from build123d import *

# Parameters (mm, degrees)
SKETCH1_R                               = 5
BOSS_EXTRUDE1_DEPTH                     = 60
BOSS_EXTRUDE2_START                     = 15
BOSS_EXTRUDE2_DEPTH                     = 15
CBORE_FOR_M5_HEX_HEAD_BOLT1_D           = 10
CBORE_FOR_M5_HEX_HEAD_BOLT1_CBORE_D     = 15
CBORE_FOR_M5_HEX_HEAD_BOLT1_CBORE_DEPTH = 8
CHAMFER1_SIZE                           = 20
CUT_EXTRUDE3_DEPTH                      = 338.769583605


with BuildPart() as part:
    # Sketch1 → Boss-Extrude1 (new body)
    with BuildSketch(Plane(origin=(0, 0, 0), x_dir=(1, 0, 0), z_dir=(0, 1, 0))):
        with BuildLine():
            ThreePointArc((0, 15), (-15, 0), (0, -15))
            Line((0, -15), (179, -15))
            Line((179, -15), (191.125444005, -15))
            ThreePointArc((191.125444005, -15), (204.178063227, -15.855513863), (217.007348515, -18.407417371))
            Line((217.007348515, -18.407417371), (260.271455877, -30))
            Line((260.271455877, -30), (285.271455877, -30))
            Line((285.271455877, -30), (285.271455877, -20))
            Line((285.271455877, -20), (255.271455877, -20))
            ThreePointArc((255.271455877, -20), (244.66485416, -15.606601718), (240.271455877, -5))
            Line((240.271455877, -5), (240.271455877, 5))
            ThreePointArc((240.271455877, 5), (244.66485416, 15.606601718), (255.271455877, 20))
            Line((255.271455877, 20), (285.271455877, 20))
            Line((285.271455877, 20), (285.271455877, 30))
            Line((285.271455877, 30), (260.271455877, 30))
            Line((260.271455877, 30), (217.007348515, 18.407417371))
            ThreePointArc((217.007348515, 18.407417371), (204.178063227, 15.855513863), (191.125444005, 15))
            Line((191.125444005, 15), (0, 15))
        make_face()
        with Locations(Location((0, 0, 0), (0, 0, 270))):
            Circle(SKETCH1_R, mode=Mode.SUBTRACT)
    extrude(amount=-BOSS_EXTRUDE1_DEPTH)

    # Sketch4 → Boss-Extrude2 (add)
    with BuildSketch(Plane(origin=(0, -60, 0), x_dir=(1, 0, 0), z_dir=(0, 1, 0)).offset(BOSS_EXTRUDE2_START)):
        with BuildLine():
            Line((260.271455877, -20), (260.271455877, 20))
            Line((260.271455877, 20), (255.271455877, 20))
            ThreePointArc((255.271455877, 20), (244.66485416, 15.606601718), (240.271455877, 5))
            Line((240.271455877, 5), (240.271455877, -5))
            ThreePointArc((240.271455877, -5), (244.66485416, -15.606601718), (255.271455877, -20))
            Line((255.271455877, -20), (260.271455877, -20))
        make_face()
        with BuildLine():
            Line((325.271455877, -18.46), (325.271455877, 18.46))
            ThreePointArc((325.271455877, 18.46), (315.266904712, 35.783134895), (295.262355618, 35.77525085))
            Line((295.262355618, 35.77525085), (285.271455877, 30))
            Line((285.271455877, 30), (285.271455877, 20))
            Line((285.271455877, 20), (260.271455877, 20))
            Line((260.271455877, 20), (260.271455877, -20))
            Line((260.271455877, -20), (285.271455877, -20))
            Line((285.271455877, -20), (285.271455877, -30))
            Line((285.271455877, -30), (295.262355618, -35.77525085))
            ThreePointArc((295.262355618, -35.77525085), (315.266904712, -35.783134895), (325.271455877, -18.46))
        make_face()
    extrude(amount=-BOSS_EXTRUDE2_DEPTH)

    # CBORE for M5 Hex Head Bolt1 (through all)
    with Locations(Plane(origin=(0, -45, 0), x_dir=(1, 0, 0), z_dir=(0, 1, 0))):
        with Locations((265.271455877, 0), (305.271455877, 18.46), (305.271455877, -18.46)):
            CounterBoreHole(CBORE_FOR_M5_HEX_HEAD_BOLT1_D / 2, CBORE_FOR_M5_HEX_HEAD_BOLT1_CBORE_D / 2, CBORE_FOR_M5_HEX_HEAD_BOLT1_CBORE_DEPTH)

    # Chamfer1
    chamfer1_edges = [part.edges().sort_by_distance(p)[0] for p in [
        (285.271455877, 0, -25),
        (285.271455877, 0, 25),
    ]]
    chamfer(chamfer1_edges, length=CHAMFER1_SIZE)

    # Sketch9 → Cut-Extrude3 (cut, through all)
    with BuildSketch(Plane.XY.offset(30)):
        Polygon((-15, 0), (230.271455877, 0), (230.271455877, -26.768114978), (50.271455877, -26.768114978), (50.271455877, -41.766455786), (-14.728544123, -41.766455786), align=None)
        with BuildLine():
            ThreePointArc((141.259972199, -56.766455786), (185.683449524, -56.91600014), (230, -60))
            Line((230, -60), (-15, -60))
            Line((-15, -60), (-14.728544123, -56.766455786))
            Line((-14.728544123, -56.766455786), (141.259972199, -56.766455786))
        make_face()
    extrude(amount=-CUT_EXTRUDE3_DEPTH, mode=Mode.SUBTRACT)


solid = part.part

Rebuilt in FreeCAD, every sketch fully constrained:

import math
import FreeCAD as App
import Part
import Sketcher
Q = App.Units.Quantity


def edges_at(feature, points):
    """Names of the edges that pass closest to the given points."""
    edges = feature.Shape.Edges
    near = lambda p: min(range(len(edges)), key=lambda i: edges[i].distToShape(Part.Vertex(*p))[0])
    return sorted({f"Edge{near(p) + 1}" for p in points})

doc = App.newDocument("Part")
body = doc.addObject("PartDesign::Body", "Body")

# Sketch on XZ plane
sketch1 = body.newObject("Sketcher::SketchObject", "Sketch")
sketch1.AttachmentSupport = (doc.getObject("XZ_Plane"), [""])
sketch1.MapMode = "FlatFace"
sketch1.addGeometry(Part.ArcOfCircle(Part.Circle(App.Vector(0, 0, 0), App.Vector(0, 0, 1), 15), math.radians(90), math.radians(270)), False)
sketch1.addGeometry(Part.LineSegment(App.Vector(0, 15, 0), App.Vector(191.125444, 15, 0)), False)
sketch1.addGeometry(Part.ArcOfCircle(Part.Circle(App.Vector(191.125444, 115, 0), App.Vector(0, 0, 1), 100), math.radians(-90), math.radians(-75)), False)
sketch1.addGeometry(Part.LineSegment(App.Vector(217.007349, 18.407417, 0), App.Vector(260.271456, 30, 0)), False)
sketch1.addGeometry(Part.LineSegment(App.Vector(260.271456, 30, 0), App.Vector(285.271456, 30, 0)), False)
sketch1.addGeometry(Part.LineSegment(App.Vector(285.271456, 30, 0), App.Vector(285.271456, 20, 0)), False)
sketch1.addGeometry(Part.LineSegment(App.Vector(285.271456, 20, 0), App.Vector(255.271456, 20, 0)), False)
sketch1.addGeometry(Part.ArcOfCircle(Part.Circle(App.Vector(255.271456, 5, 0), App.Vector(0, 0, 1), 15), math.radians(90), math.radians(180)), False)
sketch1.addGeometry(Part.LineSegment(App.Vector(240.271456, 5, 0), App.Vector(240.271456, -5, 0)), False)
sketch1.addGeometry(Part.ArcOfCircle(Part.Circle(App.Vector(255.271456, -5, 0), App.Vector(0, 0, 1), 15), math.radians(-180), math.radians(-90)), False)
sketch1.addGeometry(Part.LineSegment(App.Vector(255.271456, -20, 0), App.Vector(285.271456, -20, 0)), False)
sketch1.addGeometry(Part.LineSegment(App.Vector(285.271456, -20, 0), App.Vector(285.271456, -30, 0)), False)
sketch1.addGeometry(Part.LineSegment(App.Vector(285.271456, -30, 0), App.Vector(260.271456, -30, 0)), False)
sketch1.addGeometry(Part.LineSegment(App.Vector(260.271456, -30, 0), App.Vector(217.007349, -18.407417, 0)), False)
sketch1.addGeometry(Part.ArcOfCircle(Part.Circle(App.Vector(191.125444, -115, 0), App.Vector(0, 0, 1), 100), math.radians(75), math.radians(90)), False)
sketch1.addGeometry(Part.LineSegment(App.Vector(191.125444, -15, 0), App.Vector(0, -15, 0)), False)
sketch1.addGeometry(Part.Circle(App.Vector(0, 0, 0), App.Vector(0, 0, 1), 5), False)
sketch1.addConstraint(Sketcher.Constraint("Tangent", 0, 1, 1, 1))
sketch1.addConstraint(Sketcher.Constraint("Tangent", 1, 2, 2, 1))
sketch1.addConstraint(Sketcher.Constraint("Tangent", 2, 2, 3, 1))
sketch1.addConstraint(Sketcher.Constraint("Coincident", 3, 2, 4, 1))
sketch1.addConstraint(Sketcher.Constraint("Coincident", 4, 2, 5, 1))
sketch1.addConstraint(Sketcher.Constraint("Coincident", 5, 2, 6, 1))
sketch1.addConstraint(Sketcher.Constraint("Tangent", 6, 2, 7, 1))
sketch1.addConstraint(Sketcher.Constraint("Tangent", 7, 2, 8, 1))
sketch1.addConstraint(Sketcher.Constraint("Tangent", 8, 2, 9, 1))
sketch1.addConstraint(Sketcher.Constraint("Tangent", 9, 2, 10, 1))
sketch1.addConstraint(Sketcher.Constraint("Coincident", 10, 2, 11, 1))
sketch1.addConstraint(Sketcher.Constraint("Coincident", 11, 2, 12, 1))
sketch1.addConstraint(Sketcher.Constraint("Coincident", 12, 2, 13, 1))
sketch1.addConstraint(Sketcher.Constraint("Tangent", 13, 2, 14, 1))
sketch1.addConstraint(Sketcher.Constraint("Tangent", 14, 2, 15, 1))
sketch1.addConstraint(Sketcher.Constraint("Tangent", 15, 2, 0, 2))
sketch1.addConstraint(Sketcher.Constraint("Horizontal", 1))
sketch1.addConstraint(Sketcher.Constraint("Horizontal", 4))
sketch1.addConstraint(Sketcher.Constraint("Vertical", 5))
sketch1.addConstraint(Sketcher.Constraint("Horizontal", 6))
sketch1.addConstraint(Sketcher.Constraint("Vertical", 8))
sketch1.addConstraint(Sketcher.Constraint("Horizontal", 10))
sketch1.addConstraint(Sketcher.Constraint("Vertical", 11))
sketch1.addConstraint(Sketcher.Constraint("Horizontal", 12))
sketch1.addConstraint(Sketcher.Constraint("Horizontal", 15))
sketch1.addConstraint(Sketcher.Constraint("Coincident", 0, 3, -1, 1))
sketch1.addConstraint(Sketcher.Constraint("Coincident", 16, 3, -1, 1))
sketch1.addConstraint(Sketcher.Constraint("Equal", 0, 7))
sketch1.addConstraint(Sketcher.Constraint("Equal", 7, 9))
sketch1.addConstraint(Sketcher.Constraint("Equal", 2, 14))
sketch1.addConstraint(Sketcher.Constraint("Symmetric", 5, 2, 10, 2, -1))
sketch1.addConstraint(Sketcher.Constraint("Symmetric", 3, 2, 12, 2, -1))
sketch1.addConstraint(Sketcher.Constraint("Vertical", 2, 3, 14, 3))
sketch1.addConstraint(Sketcher.Constraint("Equal", 5, 8))
sketch1.addConstraint(Sketcher.Constraint("Diameter", 16, 10.0))
sketch1.addConstraint(Sketcher.Constraint("Radius", 0, 15.0))
sketch1.addConstraint(Sketcher.Constraint("Radius", 2, 100.0))
sketch1.addConstraint(Sketcher.Constraint("DistanceX", 4, 1, 4, 2, 25.0))
sketch1.addConstraint(Sketcher.Constraint("DistanceX", 6, 2, 6, 1, 30.0))
sketch1.addConstraint(Sketcher.Constraint("DistanceY", 5, 2, 5, 1, 10.0))
sketch1.addConstraint(Sketcher.Constraint("Angle", 3, Q("15 deg")))
sketch1.addConstraint(Sketcher.Constraint("DistanceX", 1, 1, 1, 2, 191.125444))
pad1 = body.newObject("PartDesign::Pad", "Pad")
pad1.Profile = sketch1
pad1.Length = 60

# Sketch on XZ plane
sketch2 = body.newObject("Sketcher::SketchObject", "Sketch001")
sketch2.AttachmentSupport = (doc.getObject("XZ_Plane"), [""])
sketch2.MapMode = "FlatFace"
sketch2.AttachmentOffset = App.Placement(App.Vector(0, 0, 45), App.Rotation())
sketch2.addGeometry(Part.ArcOfCircle(Part.Circle(App.Vector(255.271456, -5, 0), App.Vector(0, 0, 1), 15), math.radians(-180), math.radians(-90)), False)
sketch2.addGeometry(Part.LineSegment(App.Vector(240.271456, -5, 0), App.Vector(240.271456, 5, 0)), False)
sketch2.addGeometry(Part.ArcOfCircle(Part.Circle(App.Vector(255.271456, 5, 0), App.Vector(0, 0, 1), 15), math.radians(90), math.radians(180)), False)
sketch2.addGeometry(Part.LineSegment(App.Vector(255.271456, 20, 0), App.Vector(285.271456, 20, 0)), False)
sketch2.addGeometry(Part.LineSegment(App.Vector(285.271456, 20, 0), App.Vector(285.271456, 30, 0)), False)
sketch2.addGeometry(Part.LineSegment(App.Vector(285.271456, 30, 0), App.Vector(295.262356, 35.775251, 0)), False)
sketch2.addGeometry(Part.ArcOfCircle(Part.Circle(App.Vector(305.271456, 18.46, 0), App.Vector(0, 0, 1), 20), math.radians(0), math.radians(120.030108)), False)
sketch2.addGeometry(Part.LineSegment(App.Vector(325.271456, 18.46, 0), App.Vector(325.271456, -18.46, 0)), False)
sketch2.addGeometry(Part.ArcOfCircle(Part.Circle(App.Vector(305.271456, -18.46, 0), App.Vector(0, 0, 1), 20), math.radians(-120.030108), math.radians(0)), False)
sketch2.addGeometry(Part.LineSegment(App.Vector(295.262356, -35.775251, 0), App.Vector(285.271456, -30, 0)), False)
sketch2.addGeometry(Part.LineSegment(App.Vector(285.271456, -30, 0), App.Vector(285.271456, -20, 0)), False)
sketch2.addGeometry(Part.LineSegment(App.Vector(285.271456, -20, 0), App.Vector(255.271456, -20, 0)), False)
sketch2.addConstraint(Sketcher.Constraint("Tangent", 0, 1, 1, 1))
sketch2.addConstraint(Sketcher.Constraint("Tangent", 1, 2, 2, 2))
sketch2.addConstraint(Sketcher.Constraint("Tangent", 2, 1, 3, 1))
sketch2.addConstraint(Sketcher.Constraint("Coincident", 3, 2, 4, 1))
sketch2.addConstraint(Sketcher.Constraint("Coincident", 4, 2, 5, 1))
sketch2.addConstraint(Sketcher.Constraint("Tangent", 5, 2, 6, 2))
sketch2.addConstraint(Sketcher.Constraint("Tangent", 6, 1, 7, 1))
sketch2.addConstraint(Sketcher.Constraint("Tangent", 7, 2, 8, 2))
sketch2.addConstraint(Sketcher.Constraint("Tangent", 8, 1, 9, 1))
sketch2.addConstraint(Sketcher.Constraint("Coincident", 9, 2, 10, 1))
sketch2.addConstraint(Sketcher.Constraint("Coincident", 10, 2, 11, 1))
sketch2.addConstraint(Sketcher.Constraint("Tangent", 11, 2, 0, 2))
sketch2.addConstraint(Sketcher.Constraint("Vertical", 1))
sketch2.addConstraint(Sketcher.Constraint("Horizontal", 3))
sketch2.addConstraint(Sketcher.Constraint("Vertical", 4))
sketch2.addConstraint(Sketcher.Constraint("Vertical", 7))
sketch2.addConstraint(Sketcher.Constraint("Vertical", 10))
sketch2.addConstraint(Sketcher.Constraint("Horizontal", 11))
sketch2.addConstraint(Sketcher.Constraint("Equal", 0, 2))
sketch2.addConstraint(Sketcher.Constraint("Equal", 6, 8))
sketch2.addConstraint(Sketcher.Constraint("Symmetric", 5, 2, 8, 1, -1))
sketch2.addConstraint(Sketcher.Constraint("Symmetric", 3, 2, 10, 2, -1))
sketch2.addConstraint(Sketcher.Constraint("Equal", 1, 4))
sketch2.addConstraint(Sketcher.Constraint("Radius", 0, 15.0))
sketch2.addConstraint(Sketcher.Constraint("Radius", 6, 20.0))
sketch2.addConstraint(Sketcher.Constraint("DistanceX", 3, 1, 3, 2, 30.0))
sketch2.addConstraint(Sketcher.Constraint("DistanceY", 1, 1, 1, 2, 10.0))
sketch2.addConstraint(Sketcher.Constraint("DistanceX", 2, 3, 6, 3, 50.0))
sketch2.addConstraint(Sketcher.Constraint("DistanceY", 7, 2, 7, 1, 36.92))
sketch2.addConstraint(Sketcher.Constraint("DistanceX", -1, 1, 0, 3, 255.271456))
pad2 = body.newObject("PartDesign::Pad", "Pad001")
pad2.Profile = sketch2
pad2.Length = 15

# Sketch on XZ plane
sketch3 = body.newObject("Sketcher::SketchObject", "Sketch002")
sketch3.AttachmentSupport = (doc.getObject("XZ_Plane"), [""])
sketch3.MapMode = "FlatFace"
sketch3.AttachmentOffset = App.Placement(App.Vector(0, 0, 45), App.Rotation())
sketch3.addGeometry(Part.Circle(App.Vector(265.271456, 0, 0), App.Vector(0, 0, 1), 5), False)
sketch3.addGeometry(Part.Circle(App.Vector(305.271456, -18.46, 0), App.Vector(0, 0, 1), 5), False)
sketch3.addGeometry(Part.Circle(App.Vector(305.271456, 18.46, 0), App.Vector(0, 0, 1), 5), False)
sketch3.addConstraint(Sketcher.Constraint("Equal", 0, 1))
sketch3.addConstraint(Sketcher.Constraint("Equal", 1, 2))
sketch3.addConstraint(Sketcher.Constraint("Symmetric", 1, 3, 2, 3, -1))
sketch3.addConstraint(Sketcher.Constraint("PointOnObject", 0, 3, -1))
sketch3.addConstraint(Sketcher.Constraint("Diameter", 0, 10.0))
sketch3.addConstraint(Sketcher.Constraint("DistanceX", 0, 3, 1, 3, 40.0))
sketch3.addConstraint(Sketcher.Constraint("DistanceY", 1, 3, -1, 1, 18.46))
sketch3.addConstraint(Sketcher.Constraint("DistanceX", -1, 1, 0, 3, 265.271456))
doc.recompute()
hole = body.newObject("PartDesign::Hole", "Hole")
hole.Profile = sketch3
hole.ThreadType = "None"
hole.Diameter = 10
hole.DepthType = "ThroughAll"
hole.HoleCutType = "Counterbore"
hole.HoleCutDiameter = 15
hole.HoleCutDepth = 8
hole.Reversed = True
doc.recompute()

chamfer = body.newObject("PartDesign::Chamfer", "Chamfer")
chamfer.Base = (hole, edges_at(hole, [(285.271, 0, -25), (285.271, 0, 25)]))
chamfer.Size = 20

# Sketch on XY plane
sketch4 = body.newObject("Sketcher::SketchObject", "Sketch003")
sketch4.AttachmentSupport = (doc.getObject("XY_Plane"), [""])
sketch4.MapMode = "FlatFace"
sketch4.AttachmentOffset = App.Placement(App.Vector(0, 0, 30), App.Rotation())
sketch4.addGeometry(Part.LineSegment(App.Vector(230.271456, 0, 0), App.Vector(-15, 0, 0)), False)
sketch4.addGeometry(Part.LineSegment(App.Vector(-15, 0, 0), App.Vector(-14.728544, -41.766456, 0)), False)
sketch4.addGeometry(Part.LineSegment(App.Vector(-14.728544, -41.766456, 0), App.Vector(50.271456, -41.766456, 0)), False)
sketch4.addGeometry(Part.LineSegment(App.Vector(50.271456, -41.766456, 0), App.Vector(50.271456, -26.768115, 0)), False)
sketch4.addGeometry(Part.LineSegment(App.Vector(50.271456, -26.768115, 0), App.Vector(230.271456, -26.768115, 0)), False)
sketch4.addGeometry(Part.LineSegment(App.Vector(230.271456, -26.768115, 0), App.Vector(230.271456, 0, 0)), False)
sketch4.addGeometry(Part.ArcOfCircle(Part.Circle(App.Vector(161.210547, -728.54005, 0), App.Vector(0, 0, 1), 672.069779), math.radians(84.125223), math.radians(91.701091)), False)
sketch4.addGeometry(Part.LineSegment(App.Vector(141.259972, -56.766456, 0), App.Vector(-14.728544, -56.766456, 0)), False)
sketch4.addGeometry(Part.LineSegment(App.Vector(-14.728544, -56.766456, 0), App.Vector(-15, -60, 0)), False)
sketch4.addGeometry(Part.LineSegment(App.Vector(-15, -60, 0), App.Vector(230, -60, 0)), False)
sketch4.addConstraint(Sketcher.Constraint("Coincident", 0, 2, 1, 1))
sketch4.addConstraint(Sketcher.Constraint("Coincident", 1, 2, 2, 1))
sketch4.addConstraint(Sketcher.Constraint("Coincident", 2, 2, 3, 1))
sketch4.addConstraint(Sketcher.Constraint("Coincident", 3, 2, 4, 1))
sketch4.addConstraint(Sketcher.Constraint("Coincident", 4, 2, 5, 1))
sketch4.addConstraint(Sketcher.Constraint("Coincident", 5, 2, 0, 1))
sketch4.addConstraint(Sketcher.Constraint("Coincident", 6, 2, 7, 1))
sketch4.addConstraint(Sketcher.Constraint("Coincident", 7, 2, 8, 1))
sketch4.addConstraint(Sketcher.Constraint("Coincident", 8, 2, 9, 1))
sketch4.addConstraint(Sketcher.Constraint("Coincident", 9, 2, 6, 1))
sketch4.addConstraint(Sketcher.Constraint("Horizontal", 0))
sketch4.addConstraint(Sketcher.Constraint("Horizontal", 2))
sketch4.addConstraint(Sketcher.Constraint("Vertical", 3))
sketch4.addConstraint(Sketcher.Constraint("Horizontal", 4))
sketch4.addConstraint(Sketcher.Constraint("Vertical", 5))
sketch4.addConstraint(Sketcher.Constraint("Horizontal", 7))
sketch4.addConstraint(Sketcher.Constraint("Horizontal", 9))
sketch4.addConstraint(Sketcher.Constraint("PointOnObject", 0, 2, -1))
sketch4.addConstraint(Sketcher.Constraint("Vertical", 1, 2, 7, 2))
sketch4.addConstraint(Sketcher.Constraint("Vertical", 0, 2, 8, 2))
sketch4.addConstraint(Sketcher.Constraint("DistanceX", 2, 1, 2, 2, 65.0))
sketch4.addConstraint(Sketcher.Constraint("DistanceX", 4, 1, 4, 2, 180.0))
sketch4.addConstraint(Sketcher.Constraint("DistanceX", 9, 1, 9, 2, 245.0))
sketch4.addConstraint(Sketcher.Constraint("DistanceX", 0, 2, -1, 1, 15.0))
sketch4.addConstraint(Sketcher.Constraint("DistanceY", 8, 2, -1, 1, 60.0))
sketch4.addConstraint(Sketcher.Constraint("DistanceY", 6, 2, 2, 2, 15.0))
sketch4.addConstraint(Sketcher.Constraint("Radius", 6, 672.069779))
sketch4.addConstraint(Sketcher.Constraint("DistanceY", 3, 1, 3, 2, 14.998341))
sketch4.addConstraint(Sketcher.Constraint("Distance", 8, 3.244919))
sketch4.addConstraint(Sketcher.Constraint("DistanceX", 0, 2, 0, 1, 245.271456))
sketch4.addConstraint(Sketcher.Constraint("DistanceX", 7, 2, 7, 1, 155.988516))
pocket1 = body.newObject("PartDesign::Pocket", "Pocket")
pocket1.Profile = sketch4
pocket1.Type = "ThroughAll"

doc.recompute()
